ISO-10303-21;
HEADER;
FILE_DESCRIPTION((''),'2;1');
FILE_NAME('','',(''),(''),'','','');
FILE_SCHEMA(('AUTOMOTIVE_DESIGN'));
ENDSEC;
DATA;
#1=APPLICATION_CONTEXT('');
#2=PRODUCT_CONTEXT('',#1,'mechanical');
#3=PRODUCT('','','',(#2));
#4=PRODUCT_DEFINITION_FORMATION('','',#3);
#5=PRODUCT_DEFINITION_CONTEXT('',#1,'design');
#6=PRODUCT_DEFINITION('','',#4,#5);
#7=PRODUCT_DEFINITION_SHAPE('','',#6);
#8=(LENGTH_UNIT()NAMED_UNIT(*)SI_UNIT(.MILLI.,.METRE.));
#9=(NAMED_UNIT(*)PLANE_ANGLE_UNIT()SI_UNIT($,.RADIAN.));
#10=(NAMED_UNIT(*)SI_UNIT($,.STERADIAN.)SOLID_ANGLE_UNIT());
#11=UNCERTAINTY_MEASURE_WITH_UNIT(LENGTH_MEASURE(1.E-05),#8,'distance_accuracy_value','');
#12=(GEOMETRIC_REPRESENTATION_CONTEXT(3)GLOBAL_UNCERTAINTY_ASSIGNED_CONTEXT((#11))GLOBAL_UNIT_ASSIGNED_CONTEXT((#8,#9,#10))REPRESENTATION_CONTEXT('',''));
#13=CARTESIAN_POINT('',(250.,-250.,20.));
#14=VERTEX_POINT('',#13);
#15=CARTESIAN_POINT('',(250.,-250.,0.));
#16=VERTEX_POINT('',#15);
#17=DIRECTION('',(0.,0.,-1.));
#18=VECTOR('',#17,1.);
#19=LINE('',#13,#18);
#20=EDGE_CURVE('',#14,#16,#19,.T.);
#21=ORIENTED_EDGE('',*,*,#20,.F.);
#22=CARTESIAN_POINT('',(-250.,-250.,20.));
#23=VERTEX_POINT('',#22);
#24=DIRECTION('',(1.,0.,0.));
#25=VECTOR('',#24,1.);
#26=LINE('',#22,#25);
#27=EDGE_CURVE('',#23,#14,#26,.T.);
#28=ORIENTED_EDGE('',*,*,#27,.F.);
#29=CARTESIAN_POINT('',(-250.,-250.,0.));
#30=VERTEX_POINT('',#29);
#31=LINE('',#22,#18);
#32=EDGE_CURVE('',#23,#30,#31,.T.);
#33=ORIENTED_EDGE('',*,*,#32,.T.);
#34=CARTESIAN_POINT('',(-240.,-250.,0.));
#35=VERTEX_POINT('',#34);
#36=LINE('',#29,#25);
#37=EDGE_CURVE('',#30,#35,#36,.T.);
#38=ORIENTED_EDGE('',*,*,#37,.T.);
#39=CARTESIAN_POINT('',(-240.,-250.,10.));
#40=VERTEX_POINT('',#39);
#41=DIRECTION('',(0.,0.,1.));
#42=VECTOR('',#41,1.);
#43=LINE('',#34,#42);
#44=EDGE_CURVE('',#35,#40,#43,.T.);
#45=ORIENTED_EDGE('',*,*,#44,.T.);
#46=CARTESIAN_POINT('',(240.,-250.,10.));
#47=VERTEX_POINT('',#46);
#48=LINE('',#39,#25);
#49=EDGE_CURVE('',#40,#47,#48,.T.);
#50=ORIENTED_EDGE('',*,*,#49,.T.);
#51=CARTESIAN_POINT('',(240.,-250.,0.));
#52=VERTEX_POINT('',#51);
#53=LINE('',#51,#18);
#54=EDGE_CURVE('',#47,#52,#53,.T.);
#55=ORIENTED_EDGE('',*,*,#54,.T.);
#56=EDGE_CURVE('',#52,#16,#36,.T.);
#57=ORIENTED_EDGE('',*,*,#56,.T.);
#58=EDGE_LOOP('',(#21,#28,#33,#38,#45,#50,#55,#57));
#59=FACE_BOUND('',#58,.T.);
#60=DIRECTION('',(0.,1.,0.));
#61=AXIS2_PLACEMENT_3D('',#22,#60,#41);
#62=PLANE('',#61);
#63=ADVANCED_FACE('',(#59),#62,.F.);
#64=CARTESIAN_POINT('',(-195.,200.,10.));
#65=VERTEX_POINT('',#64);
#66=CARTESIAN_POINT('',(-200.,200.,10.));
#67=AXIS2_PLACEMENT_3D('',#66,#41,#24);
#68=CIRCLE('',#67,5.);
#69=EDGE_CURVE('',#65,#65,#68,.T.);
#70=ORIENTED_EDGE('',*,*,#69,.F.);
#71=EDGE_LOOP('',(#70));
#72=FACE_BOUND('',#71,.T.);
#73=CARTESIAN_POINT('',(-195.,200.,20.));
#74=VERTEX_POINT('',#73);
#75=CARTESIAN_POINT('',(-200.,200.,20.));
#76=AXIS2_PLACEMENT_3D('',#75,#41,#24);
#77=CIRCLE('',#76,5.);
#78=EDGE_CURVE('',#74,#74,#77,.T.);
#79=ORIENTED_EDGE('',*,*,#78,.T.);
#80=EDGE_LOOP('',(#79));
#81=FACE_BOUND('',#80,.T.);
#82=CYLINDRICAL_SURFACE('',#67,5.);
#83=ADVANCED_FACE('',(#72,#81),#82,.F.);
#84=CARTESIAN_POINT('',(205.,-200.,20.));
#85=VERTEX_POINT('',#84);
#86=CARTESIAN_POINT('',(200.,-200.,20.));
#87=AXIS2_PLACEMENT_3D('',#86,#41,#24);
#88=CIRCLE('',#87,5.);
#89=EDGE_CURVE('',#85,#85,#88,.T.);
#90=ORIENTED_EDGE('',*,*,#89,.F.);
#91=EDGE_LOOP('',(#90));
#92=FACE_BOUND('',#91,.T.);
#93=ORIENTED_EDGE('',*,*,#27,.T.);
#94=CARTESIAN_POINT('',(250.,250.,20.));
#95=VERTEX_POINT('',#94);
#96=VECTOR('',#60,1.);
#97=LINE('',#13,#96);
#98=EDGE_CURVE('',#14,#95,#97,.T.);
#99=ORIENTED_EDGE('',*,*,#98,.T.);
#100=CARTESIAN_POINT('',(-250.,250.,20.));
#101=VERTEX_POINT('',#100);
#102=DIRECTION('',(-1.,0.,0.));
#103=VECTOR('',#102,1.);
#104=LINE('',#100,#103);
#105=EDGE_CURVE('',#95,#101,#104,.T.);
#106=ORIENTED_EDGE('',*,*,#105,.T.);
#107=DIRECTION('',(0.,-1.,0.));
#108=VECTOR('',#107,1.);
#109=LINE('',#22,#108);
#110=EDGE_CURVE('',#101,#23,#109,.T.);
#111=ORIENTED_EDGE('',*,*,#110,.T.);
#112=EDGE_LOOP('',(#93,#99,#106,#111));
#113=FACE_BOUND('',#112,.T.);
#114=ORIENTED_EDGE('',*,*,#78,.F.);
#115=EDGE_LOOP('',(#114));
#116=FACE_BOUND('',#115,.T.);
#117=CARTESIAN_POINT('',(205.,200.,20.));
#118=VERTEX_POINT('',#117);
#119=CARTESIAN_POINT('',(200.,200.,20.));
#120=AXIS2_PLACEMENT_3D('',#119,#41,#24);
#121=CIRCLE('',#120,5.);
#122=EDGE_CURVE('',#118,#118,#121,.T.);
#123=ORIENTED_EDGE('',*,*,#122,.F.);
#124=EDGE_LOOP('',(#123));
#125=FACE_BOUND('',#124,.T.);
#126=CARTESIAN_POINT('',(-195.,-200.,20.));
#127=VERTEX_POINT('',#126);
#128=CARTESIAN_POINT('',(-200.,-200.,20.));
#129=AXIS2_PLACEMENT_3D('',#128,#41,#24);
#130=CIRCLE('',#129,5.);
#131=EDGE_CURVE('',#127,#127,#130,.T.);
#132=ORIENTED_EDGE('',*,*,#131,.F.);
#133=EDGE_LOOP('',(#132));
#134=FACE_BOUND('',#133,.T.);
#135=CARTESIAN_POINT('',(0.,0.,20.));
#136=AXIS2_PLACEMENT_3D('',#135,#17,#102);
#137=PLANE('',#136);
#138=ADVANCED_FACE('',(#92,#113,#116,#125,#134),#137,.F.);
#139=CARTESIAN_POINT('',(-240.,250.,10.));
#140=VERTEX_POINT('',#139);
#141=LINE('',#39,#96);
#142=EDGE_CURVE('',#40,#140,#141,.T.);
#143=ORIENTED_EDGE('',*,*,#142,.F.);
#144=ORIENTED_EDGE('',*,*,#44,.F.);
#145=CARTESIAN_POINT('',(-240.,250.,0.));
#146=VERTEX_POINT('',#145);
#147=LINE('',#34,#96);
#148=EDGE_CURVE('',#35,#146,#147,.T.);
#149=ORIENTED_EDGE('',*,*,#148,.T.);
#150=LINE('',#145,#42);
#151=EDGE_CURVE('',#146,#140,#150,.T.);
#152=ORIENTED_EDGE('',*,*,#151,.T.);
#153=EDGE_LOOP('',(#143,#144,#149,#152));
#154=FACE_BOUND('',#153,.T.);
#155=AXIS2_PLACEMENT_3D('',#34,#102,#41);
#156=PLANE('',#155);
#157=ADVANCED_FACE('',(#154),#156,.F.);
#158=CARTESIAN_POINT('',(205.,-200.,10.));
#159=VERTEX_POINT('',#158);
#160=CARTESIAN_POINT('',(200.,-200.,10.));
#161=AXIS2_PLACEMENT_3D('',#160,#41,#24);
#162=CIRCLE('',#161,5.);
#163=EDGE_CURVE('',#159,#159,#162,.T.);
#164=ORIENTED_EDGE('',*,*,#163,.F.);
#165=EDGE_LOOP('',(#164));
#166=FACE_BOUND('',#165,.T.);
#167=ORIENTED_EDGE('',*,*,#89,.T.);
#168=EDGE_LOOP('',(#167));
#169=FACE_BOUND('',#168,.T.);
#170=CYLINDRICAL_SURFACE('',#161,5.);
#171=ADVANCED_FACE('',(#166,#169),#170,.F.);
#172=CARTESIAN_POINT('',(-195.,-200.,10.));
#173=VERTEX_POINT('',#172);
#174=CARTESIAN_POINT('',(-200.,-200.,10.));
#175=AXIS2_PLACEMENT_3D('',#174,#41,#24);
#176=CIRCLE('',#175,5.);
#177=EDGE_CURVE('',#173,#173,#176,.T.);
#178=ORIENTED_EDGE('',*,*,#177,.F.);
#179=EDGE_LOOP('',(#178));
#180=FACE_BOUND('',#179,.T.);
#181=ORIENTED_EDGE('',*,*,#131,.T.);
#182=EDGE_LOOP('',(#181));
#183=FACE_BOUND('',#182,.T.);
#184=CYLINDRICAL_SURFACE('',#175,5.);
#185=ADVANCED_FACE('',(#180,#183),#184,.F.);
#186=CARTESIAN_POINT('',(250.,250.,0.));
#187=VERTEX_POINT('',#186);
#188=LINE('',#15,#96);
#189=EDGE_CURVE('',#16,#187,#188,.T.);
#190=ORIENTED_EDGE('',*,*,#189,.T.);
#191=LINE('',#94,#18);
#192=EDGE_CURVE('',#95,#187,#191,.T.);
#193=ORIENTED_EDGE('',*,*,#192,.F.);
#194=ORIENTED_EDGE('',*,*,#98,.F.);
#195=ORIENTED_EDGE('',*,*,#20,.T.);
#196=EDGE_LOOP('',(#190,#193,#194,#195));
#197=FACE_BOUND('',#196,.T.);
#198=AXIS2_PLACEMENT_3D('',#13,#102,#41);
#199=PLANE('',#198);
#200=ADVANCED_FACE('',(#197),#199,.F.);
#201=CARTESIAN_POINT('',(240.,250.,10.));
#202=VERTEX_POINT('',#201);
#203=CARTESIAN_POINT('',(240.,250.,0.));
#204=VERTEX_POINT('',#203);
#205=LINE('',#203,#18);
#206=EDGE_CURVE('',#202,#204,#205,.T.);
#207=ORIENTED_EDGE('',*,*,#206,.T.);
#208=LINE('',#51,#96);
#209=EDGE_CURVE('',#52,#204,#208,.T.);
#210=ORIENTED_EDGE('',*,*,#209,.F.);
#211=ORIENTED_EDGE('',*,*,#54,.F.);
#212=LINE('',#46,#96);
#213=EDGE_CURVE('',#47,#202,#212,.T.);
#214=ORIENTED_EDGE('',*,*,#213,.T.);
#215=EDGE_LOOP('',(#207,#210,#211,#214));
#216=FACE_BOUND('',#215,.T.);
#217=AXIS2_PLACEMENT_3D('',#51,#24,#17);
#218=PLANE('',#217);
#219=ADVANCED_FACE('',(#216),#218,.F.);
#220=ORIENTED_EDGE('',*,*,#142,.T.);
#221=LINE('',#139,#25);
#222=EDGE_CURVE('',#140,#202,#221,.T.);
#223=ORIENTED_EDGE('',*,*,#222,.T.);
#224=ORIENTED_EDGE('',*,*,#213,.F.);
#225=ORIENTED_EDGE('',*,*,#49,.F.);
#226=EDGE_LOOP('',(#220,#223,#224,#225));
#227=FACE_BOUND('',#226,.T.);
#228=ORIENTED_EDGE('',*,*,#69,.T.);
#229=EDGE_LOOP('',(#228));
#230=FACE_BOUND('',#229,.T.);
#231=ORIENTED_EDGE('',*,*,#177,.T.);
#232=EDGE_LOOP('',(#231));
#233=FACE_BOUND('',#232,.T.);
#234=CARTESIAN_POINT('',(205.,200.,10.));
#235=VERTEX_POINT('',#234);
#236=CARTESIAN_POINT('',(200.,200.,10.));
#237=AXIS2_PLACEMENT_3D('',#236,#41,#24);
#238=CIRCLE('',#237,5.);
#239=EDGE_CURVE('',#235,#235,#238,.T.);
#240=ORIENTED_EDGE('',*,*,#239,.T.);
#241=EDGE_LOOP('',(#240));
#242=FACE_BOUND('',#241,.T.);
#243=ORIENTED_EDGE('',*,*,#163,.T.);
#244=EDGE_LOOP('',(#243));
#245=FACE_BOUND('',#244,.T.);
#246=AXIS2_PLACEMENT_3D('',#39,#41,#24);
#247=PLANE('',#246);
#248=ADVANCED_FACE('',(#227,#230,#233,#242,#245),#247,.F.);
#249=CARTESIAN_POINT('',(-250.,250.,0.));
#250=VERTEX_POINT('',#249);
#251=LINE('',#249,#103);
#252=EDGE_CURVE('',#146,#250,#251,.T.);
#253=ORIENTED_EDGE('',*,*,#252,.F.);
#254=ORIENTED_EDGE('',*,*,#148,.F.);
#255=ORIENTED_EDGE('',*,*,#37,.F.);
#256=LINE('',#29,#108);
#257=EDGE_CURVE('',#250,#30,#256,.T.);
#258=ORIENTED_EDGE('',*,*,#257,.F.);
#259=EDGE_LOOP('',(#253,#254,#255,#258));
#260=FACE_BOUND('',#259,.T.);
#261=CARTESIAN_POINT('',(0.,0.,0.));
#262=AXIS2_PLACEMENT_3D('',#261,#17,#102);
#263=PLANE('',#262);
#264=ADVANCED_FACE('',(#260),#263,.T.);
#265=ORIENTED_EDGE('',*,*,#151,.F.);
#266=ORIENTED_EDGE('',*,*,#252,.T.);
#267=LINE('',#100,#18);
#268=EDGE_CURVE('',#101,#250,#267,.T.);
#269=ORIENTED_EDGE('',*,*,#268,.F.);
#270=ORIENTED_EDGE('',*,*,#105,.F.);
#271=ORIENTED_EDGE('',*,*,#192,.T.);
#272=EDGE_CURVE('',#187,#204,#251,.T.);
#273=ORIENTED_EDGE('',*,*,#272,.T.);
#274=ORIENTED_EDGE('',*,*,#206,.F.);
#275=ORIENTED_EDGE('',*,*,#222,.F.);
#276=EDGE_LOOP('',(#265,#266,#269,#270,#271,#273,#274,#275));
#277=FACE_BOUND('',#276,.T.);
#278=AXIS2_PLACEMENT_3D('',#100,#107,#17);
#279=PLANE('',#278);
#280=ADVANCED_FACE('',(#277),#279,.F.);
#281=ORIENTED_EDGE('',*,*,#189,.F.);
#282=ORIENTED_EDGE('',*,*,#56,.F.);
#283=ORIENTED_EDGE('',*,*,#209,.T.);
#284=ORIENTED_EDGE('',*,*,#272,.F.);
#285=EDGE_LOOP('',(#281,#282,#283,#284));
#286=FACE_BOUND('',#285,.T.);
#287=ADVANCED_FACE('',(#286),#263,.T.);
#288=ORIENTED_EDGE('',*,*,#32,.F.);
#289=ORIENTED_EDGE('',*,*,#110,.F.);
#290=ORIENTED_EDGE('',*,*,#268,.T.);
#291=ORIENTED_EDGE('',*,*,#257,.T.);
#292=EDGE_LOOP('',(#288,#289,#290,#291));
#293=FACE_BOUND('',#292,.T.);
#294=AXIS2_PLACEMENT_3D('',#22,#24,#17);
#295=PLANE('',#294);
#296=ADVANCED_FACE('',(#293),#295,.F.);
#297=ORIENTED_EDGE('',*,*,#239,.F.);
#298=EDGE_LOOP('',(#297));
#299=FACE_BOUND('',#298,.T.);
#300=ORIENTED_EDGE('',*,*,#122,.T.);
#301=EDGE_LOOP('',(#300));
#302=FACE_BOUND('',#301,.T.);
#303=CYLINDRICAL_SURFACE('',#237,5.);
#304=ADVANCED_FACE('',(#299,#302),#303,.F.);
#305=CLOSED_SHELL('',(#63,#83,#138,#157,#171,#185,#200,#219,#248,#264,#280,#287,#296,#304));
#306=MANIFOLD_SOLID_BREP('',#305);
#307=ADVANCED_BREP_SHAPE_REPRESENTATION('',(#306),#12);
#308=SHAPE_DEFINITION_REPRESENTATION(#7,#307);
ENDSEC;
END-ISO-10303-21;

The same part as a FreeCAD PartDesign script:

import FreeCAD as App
import Part
import Sketcher
Q = App.Units.Quantity


def add_polygon(sketch, points):
    """Adds a closed chain of lines whose ends are joined by coincident constraints."""
    first, n = sketch.GeometryCount, len(points)
    for a, b in zip(points, points[1:] + points[:1]):
        sketch.addGeometry(Part.LineSegment(App.Vector(*a, 0), App.Vector(*b, 0)), False)
    for i in range(n):
        sketch.addConstraint(Sketcher.Constraint("Coincident", first + i, 2, first + (i + 1) % n, 1))

doc = App.newDocument("Part")
params = doc.addObject("Spreadsheet::Sheet", "Params")
for row, (alias, value) in enumerate([
    ("sketch1_width", "500 mm"),
    ("pad1_length", "20 mm"),
    ("sketch2_width", "480 mm"),
    ("sketch2_height", "10 mm"),
    ("pocket1_length", "500 mm"),
    ("sketch3_diameter", "10 mm"),
    ("pocket2_length", "10 mm"),
], start=1):
    params.set(f"A{row}", alias)
    params.set(f"B{row}", "=" + value)
    params.setAlias(f"B{row}", alias)

body = doc.addObject("PartDesign::Body", "Body")

sketch1 = body.newObject("Sketcher::SketchObject", "Sketch")
sketch1.AttachmentSupport = (doc.getObject("XY_Plane"), [""])
sketch1.MapMode = "FlatFace"
add_polygon(sketch1, [(-250, 250), (-250, -250), (250, -250), (250, 250)])
sketch1.addConstraint(Sketcher.Constraint("Vertical", 0))
sketch1.addConstraint(Sketcher.Constraint("Horizontal", 1))
sketch1.addConstraint(Sketcher.Constraint("Vertical", 2))
sketch1.addConstraint(Sketcher.Constraint("Horizontal", 3))
sketch1.addConstraint(Sketcher.Constraint("Symmetric", 0, 2, 2, 2, -1, 1))
sketch1.addConstraint(Sketcher.Constraint("Equal", 3, 0))
sketch1.addConstraint(Sketcher.Constraint("DistanceX", 1, 1, 1, 2, Q("500 mm")))
sketch1.setExpression("Constraints[10]", "Params.sketch1_width")
pad1 = body.newObject("PartDesign::Pad", "Pad")
pad1.Profile = sketch1
pad1.setExpression("Length", "Params.pad1_length")

sketch2 = body.newObject("Sketcher::SketchObject", "Sketch001")
sketch2.AttachmentSupport = (doc.getObject("XZ_Plane"), [""])
sketch2.MapMode = "FlatFace"
sketch2.AttachmentOffset = App.Placement(App.Vector(0, 0, -250), App.Rotation())
add_polygon(sketch2, [(-240, 0), (-240, 10), (240, 10), (240, 0)])
sketch2.addConstraint(Sketcher.Constraint("Vertical", 0))
sketch2.addConstraint(Sketcher.Constraint("Horizontal", 1))
sketch2.addConstraint(Sketcher.Constraint("Vertical", 2))
sketch2.addConstraint(Sketcher.Constraint("Horizontal", 3))
sketch2.addConstraint(Sketcher.Constraint("Symmetric", 2, 2, 3, 2, -1, 1))
sketch2.addConstraint(Sketcher.Constraint("DistanceX", 1, 1, 1, 2, Q("480 mm")))
sketch2.addConstraint(Sketcher.Constraint("DistanceY", 0, 1, 0, 2, Q("10 mm")))
sketch2.setExpression("Constraints[9]", "Params.sketch2_width")
sketch2.setExpression("Constraints[10]", "Params.sketch2_height")
pocket1 = body.newObject("PartDesign::Pocket", "Pocket")
pocket1.Profile = sketch2
pocket1.setExpression("Length", "Params.pocket1_length")
pocket1.Reversed = True

sketch3 = body.newObject("Sketcher::SketchObject", "Sketch002")
sketch3.AttachmentSupport = (doc.getObject("XY_Plane"), [""])
sketch3.MapMode = "FlatFace"
sketch3.AttachmentOffset = App.Placement(App.Vector(0, 0, 20), App.Rotation())
sketch3.addGeometry(Part.Circle(App.Vector(-200, 200, 0), App.Vector(0, 0, 1), 5), False)
sketch3.addGeometry(Part.Circle(App.Vector(200, 200, 0), App.Vector(0, 0, 1), 5), False)
sketch3.addGeometry(Part.Circle(App.Vector(-200, -200, 0), App.Vector(0, 0, 1), 5), False)
sketch3.addGeometry(Part.Circle(App.Vector(200, -200, 0), App.Vector(0, 0, 1), 5), False)
sketch3.addConstraint(Sketcher.Constraint("Equal", 0, 1))
sketch3.addConstraint(Sketcher.Constraint("Equal", 1, 2))
sketch3.addConstraint(Sketcher.Constraint("Equal", 2, 3))
sketch3.addConstraint(Sketcher.Constraint("Symmetric", 1, 3, 2, 3, -1, 1))
sketch3.addConstraint(Sketcher.Constraint("Symmetric", 0, 3, 3, 3, -1, 1))
sketch3.addConstraint(Sketcher.Constraint("Symmetric", 0, 3, 1, 3, -2))
sketch3.addConstraint(Sketcher.Constraint("Diameter", 0, Q("10 mm")))
sketch3.addConstraint(Sketcher.Constraint("DistanceX", 0, 3, -1, 1, Q("200 mm")))
sketch3.addConstraint(Sketcher.Constraint("DistanceY", -1, 1, 0, 3, Q("200 mm")))
sketch3.setExpression("Constraints[6]", "Params.sketch3_diameter")
pocket2 = body.newObject("PartDesign::Pocket", "Pocket001")
pocket2.Profile = sketch3
pocket2.setExpression("Length", "Params.pocket2_length")

doc.recompute()
